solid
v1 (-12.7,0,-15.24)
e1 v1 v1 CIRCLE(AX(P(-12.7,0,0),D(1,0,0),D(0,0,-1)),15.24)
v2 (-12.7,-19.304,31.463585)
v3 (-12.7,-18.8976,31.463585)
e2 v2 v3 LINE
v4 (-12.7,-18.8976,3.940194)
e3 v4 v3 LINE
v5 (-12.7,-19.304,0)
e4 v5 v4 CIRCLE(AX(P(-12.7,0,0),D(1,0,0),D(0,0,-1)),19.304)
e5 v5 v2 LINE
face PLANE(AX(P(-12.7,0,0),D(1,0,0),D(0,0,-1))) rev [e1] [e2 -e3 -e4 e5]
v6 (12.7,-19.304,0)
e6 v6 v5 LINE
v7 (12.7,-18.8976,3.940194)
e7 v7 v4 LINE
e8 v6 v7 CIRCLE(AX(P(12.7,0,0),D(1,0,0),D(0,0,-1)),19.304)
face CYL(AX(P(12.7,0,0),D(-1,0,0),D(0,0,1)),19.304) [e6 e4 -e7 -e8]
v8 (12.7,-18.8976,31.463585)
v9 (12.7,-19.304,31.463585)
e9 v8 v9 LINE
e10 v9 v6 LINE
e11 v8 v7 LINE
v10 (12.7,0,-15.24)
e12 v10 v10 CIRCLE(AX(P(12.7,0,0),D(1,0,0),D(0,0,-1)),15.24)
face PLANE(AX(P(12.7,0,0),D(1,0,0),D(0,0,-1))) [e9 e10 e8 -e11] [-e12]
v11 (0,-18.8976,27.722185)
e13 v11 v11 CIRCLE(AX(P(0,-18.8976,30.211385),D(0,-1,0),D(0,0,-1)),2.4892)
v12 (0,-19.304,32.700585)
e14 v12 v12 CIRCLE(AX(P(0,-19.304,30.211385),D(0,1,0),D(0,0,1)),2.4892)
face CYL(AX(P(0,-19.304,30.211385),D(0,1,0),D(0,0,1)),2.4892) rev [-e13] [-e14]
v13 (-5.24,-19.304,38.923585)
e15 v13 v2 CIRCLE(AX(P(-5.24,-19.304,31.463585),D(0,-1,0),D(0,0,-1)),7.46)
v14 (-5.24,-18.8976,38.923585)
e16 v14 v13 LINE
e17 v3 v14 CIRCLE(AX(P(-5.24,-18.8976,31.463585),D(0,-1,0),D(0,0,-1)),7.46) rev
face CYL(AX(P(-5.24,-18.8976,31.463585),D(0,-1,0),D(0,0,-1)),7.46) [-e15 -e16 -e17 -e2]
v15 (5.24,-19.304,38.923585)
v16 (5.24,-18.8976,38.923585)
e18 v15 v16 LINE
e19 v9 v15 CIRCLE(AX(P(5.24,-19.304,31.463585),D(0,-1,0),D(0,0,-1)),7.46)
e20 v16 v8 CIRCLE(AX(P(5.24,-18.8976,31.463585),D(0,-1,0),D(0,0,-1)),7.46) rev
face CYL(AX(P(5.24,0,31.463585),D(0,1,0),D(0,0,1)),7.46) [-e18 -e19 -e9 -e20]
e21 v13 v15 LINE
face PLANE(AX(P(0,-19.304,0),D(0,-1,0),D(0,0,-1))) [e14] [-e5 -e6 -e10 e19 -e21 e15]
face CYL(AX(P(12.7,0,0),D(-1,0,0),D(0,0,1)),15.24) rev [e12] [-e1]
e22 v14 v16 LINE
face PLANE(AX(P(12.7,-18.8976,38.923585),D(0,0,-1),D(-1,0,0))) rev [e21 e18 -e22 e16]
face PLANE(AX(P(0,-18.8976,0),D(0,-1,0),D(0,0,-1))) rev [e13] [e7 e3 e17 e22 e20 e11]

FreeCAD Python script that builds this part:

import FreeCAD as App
import Part
import Sketcher
Q = App.Units.Quantity


def edges_at(feature, points):
    """Names of the edges that pass closest to the given points."""
    edges = feature.Shape.Edges
    near = lambda p: min(range(len(edges)), key=lambda i: edges[i].distToShape(Part.Vertex(*p))[0])
    return sorted({f"Edge{near(p) + 1}" for p in points})

doc = App.newDocument("Part")
body = doc.addObject("PartDesign::Body", "Body")

# Sketch on YZ plane
sketch1 = doc.addObject("Sketcher::SketchObject", "Sketch")
body.addObject(sketch1)
sketch1.AttachmentSupport = (doc.YZ_Plane, [""])
sketch1.MapMode = "FlatFace"
sketch1.addGeometry([
    Part.Circle(App.Vector(0, 0, 0), App.Vector(0, 0, 1), 19),
    Part.Circle(App.Vector(0, 0, 0), App.Vector(0, 0, 1), 15),
], False)
sketch1.addConstraint([
    Sketcher.Constraint("Coincident", 0, 3, -1, 1),
    Sketcher.Constraint("Coincident", 1, 3, -1, 1),
    Sketcher.Constraint("Diameter", 1, Q("1.2 in")),
    Sketcher.Constraint("Diameter", 0, Q("1.52 in")),
])
pad1 = doc.addObject("PartDesign::Pad", "Pad")
body.addObject(pad1)
pad1.Profile = sketch1
pad1.Length = Q("1 in")
pad1.Midplane = True

# Sketch on XZ plane
sketch2 = doc.addObject("Sketcher::SketchObject", "Sketch001")
body.addObject(sketch2)
sketch2.AttachmentSupport = (doc.XZ_Plane, [""])
sketch2.MapMode = "FlatFace"
sketch2.AttachmentOffset = App.Placement(App.Vector(0, 0, 0.76 * 25.4), App.Rotation())
sketch2.addGeometry([
    Part.LineSegment(App.Vector(-13, 0, 0), App.Vector(-13, 39, 0)),
    Part.LineSegment(App.Vector(-13, 39, 0), App.Vector(13, 39, 0)),
    Part.LineSegment(App.Vector(13, 39, 0), App.Vector(13, 0, 0)),
    Part.LineSegment(App.Vector(13, 0, 0), App.Vector(-13, 0, 0)),
], False)
sketch2.addConstraint([
    Sketcher.Constraint("Coincident", 0, 2, 1, 1),
    Sketcher.Constraint("Coincident", 1, 2, 2, 1),
    Sketcher.Constraint("Coincident", 2, 2, 3, 1),
    Sketcher.Constraint("Coincident", 3, 2, 0, 1),
    Sketcher.Constraint("Vertical", 0),
    Sketcher.Constraint("Horizontal", 1),
    Sketcher.Constraint("Vertical", 2),
    Sketcher.Constraint("Horizontal", 3),
    Sketcher.Constraint("Symmetric", 2, 2, 3, 2, -1, 1),
    Sketcher.Constraint("DistanceX", 1, 1, 1, 2, Q("1 in")),
    Sketcher.Constraint("DistanceY", 0, 1, 0, 2, 38.923585),
])
pad2 = doc.addObject("PartDesign::Pad", "Pad001")
body.addObject(pad2)
pad2.Profile = sketch2
pad2.Length = Q("0.016 in")
pad2.Reversed = True

# Sketch on XZ plane
sketch3 = doc.addObject("Sketcher::SketchObject", "Sketch002")
body.addObject(sketch3)
sketch3.AttachmentSupport = (doc.XZ_Plane, [""])
sketch3.MapMode = "FlatFace"
sketch3.AttachmentOffset = App.Placement(App.Vector(0, 0, 0.744 * 25.4), App.Rotation())
sketch3.addGeometry(Part.Circle(App.Vector(0, 30.2, 0), App.Vector(0, 0, 1), 2.5), False)
sketch3.addConstraint([
    Sketcher.Constraint("PointOnObject", 0, 3, -2),
    Sketcher.Constraint("Diameter", 0, Q("0.196 in")),
    Sketcher.Constraint("DistanceY", -1, 1, 0, 3, 30.211385),
])
pocket1 = doc.addObject("PartDesign::Pocket", "Pocket")
body.addObject(pocket1)
pocket1.Profile = sketch3
pocket1.Type = "ThroughAll"
pocket1.Midplane = True
doc.recompute()

fillet = doc.addObject("PartDesign::Fillet", "Fillet")
body.addObject(fillet)
fillet.Base = (pocket1, edges_at(pocket1, [(12.7, -19.101, 38.924), (-12.7, -19.101, 38.924)]))
fillet.Radius = 7.46

doc.recompute()
